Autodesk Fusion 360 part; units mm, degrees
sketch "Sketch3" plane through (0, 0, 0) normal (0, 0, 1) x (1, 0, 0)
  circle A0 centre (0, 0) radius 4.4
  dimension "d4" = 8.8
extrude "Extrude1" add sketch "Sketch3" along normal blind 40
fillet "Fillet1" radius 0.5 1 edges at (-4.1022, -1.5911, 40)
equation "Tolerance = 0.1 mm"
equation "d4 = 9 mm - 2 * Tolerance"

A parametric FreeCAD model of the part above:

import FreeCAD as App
import Part
import Sketcher
from FreeCAD import Vector


def edges_at(feature, points):
    """Names of the edges that pass closest to the given points."""
    edges = feature.Shape.Edges
    near = lambda p: min(range(len(edges)), key=lambda i: edges[i].distToShape(Part.Vertex(*p))[0])
    return sorted({f"Edge{near(p) + 1}" for p in points})

doc = App.newDocument("Part")
params = doc.addObject("Spreadsheet::Sheet", "Params")
for row, (alias, value) in enumerate([
    ("sketch1_diameter", "8.8 mm"),
    ("pad1_length", "40 mm"),
    ("fillet_radius", "0.5 mm"),
], start=1):
    params.set(f"A{row}", alias)
    params.set(f"B{row}", "=" + value)
    params.setAlias(f"B{row}", alias)

body = doc.addObject("PartDesign::Body", "Body")

sketch1 = doc.addObject("Sketcher::SketchObject", "Sketch")
body.addObject(sketch1)
sketch1.AttachmentSupport = (doc.XY_Plane, [""])
sketch1.MapMode = "FlatFace"
sketch1.addGeometry(Part.Circle(Vector(0, 0, 0), Vector(0, 0, 1), 4.4), False)
sketch1.addConstraint(Sketcher.Constraint("Coincident", 0, 3, -1, 1))
sketch1.addConstraint(Sketcher.Constraint("Diameter", 0, 8.8))
sketch1.setExpression("Constraints[1]", "Params.sketch1_diameter")
pad1 = doc.addObject("PartDesign::Pad", "Pad")
body.addObject(pad1)
pad1.Profile = sketch1
pad1.setExpression("Length", "Params.pad1_length")
doc.recompute()

fillet = doc.addObject("PartDesign::Fillet", "Fillet")
body.addObject(fillet)
fillet.Base = (pad1, edges_at(pad1, [(-4.102, -1.591, 40)]))
fillet.setExpression("Radius", "Params.fillet_radius")

doc.recompute()
